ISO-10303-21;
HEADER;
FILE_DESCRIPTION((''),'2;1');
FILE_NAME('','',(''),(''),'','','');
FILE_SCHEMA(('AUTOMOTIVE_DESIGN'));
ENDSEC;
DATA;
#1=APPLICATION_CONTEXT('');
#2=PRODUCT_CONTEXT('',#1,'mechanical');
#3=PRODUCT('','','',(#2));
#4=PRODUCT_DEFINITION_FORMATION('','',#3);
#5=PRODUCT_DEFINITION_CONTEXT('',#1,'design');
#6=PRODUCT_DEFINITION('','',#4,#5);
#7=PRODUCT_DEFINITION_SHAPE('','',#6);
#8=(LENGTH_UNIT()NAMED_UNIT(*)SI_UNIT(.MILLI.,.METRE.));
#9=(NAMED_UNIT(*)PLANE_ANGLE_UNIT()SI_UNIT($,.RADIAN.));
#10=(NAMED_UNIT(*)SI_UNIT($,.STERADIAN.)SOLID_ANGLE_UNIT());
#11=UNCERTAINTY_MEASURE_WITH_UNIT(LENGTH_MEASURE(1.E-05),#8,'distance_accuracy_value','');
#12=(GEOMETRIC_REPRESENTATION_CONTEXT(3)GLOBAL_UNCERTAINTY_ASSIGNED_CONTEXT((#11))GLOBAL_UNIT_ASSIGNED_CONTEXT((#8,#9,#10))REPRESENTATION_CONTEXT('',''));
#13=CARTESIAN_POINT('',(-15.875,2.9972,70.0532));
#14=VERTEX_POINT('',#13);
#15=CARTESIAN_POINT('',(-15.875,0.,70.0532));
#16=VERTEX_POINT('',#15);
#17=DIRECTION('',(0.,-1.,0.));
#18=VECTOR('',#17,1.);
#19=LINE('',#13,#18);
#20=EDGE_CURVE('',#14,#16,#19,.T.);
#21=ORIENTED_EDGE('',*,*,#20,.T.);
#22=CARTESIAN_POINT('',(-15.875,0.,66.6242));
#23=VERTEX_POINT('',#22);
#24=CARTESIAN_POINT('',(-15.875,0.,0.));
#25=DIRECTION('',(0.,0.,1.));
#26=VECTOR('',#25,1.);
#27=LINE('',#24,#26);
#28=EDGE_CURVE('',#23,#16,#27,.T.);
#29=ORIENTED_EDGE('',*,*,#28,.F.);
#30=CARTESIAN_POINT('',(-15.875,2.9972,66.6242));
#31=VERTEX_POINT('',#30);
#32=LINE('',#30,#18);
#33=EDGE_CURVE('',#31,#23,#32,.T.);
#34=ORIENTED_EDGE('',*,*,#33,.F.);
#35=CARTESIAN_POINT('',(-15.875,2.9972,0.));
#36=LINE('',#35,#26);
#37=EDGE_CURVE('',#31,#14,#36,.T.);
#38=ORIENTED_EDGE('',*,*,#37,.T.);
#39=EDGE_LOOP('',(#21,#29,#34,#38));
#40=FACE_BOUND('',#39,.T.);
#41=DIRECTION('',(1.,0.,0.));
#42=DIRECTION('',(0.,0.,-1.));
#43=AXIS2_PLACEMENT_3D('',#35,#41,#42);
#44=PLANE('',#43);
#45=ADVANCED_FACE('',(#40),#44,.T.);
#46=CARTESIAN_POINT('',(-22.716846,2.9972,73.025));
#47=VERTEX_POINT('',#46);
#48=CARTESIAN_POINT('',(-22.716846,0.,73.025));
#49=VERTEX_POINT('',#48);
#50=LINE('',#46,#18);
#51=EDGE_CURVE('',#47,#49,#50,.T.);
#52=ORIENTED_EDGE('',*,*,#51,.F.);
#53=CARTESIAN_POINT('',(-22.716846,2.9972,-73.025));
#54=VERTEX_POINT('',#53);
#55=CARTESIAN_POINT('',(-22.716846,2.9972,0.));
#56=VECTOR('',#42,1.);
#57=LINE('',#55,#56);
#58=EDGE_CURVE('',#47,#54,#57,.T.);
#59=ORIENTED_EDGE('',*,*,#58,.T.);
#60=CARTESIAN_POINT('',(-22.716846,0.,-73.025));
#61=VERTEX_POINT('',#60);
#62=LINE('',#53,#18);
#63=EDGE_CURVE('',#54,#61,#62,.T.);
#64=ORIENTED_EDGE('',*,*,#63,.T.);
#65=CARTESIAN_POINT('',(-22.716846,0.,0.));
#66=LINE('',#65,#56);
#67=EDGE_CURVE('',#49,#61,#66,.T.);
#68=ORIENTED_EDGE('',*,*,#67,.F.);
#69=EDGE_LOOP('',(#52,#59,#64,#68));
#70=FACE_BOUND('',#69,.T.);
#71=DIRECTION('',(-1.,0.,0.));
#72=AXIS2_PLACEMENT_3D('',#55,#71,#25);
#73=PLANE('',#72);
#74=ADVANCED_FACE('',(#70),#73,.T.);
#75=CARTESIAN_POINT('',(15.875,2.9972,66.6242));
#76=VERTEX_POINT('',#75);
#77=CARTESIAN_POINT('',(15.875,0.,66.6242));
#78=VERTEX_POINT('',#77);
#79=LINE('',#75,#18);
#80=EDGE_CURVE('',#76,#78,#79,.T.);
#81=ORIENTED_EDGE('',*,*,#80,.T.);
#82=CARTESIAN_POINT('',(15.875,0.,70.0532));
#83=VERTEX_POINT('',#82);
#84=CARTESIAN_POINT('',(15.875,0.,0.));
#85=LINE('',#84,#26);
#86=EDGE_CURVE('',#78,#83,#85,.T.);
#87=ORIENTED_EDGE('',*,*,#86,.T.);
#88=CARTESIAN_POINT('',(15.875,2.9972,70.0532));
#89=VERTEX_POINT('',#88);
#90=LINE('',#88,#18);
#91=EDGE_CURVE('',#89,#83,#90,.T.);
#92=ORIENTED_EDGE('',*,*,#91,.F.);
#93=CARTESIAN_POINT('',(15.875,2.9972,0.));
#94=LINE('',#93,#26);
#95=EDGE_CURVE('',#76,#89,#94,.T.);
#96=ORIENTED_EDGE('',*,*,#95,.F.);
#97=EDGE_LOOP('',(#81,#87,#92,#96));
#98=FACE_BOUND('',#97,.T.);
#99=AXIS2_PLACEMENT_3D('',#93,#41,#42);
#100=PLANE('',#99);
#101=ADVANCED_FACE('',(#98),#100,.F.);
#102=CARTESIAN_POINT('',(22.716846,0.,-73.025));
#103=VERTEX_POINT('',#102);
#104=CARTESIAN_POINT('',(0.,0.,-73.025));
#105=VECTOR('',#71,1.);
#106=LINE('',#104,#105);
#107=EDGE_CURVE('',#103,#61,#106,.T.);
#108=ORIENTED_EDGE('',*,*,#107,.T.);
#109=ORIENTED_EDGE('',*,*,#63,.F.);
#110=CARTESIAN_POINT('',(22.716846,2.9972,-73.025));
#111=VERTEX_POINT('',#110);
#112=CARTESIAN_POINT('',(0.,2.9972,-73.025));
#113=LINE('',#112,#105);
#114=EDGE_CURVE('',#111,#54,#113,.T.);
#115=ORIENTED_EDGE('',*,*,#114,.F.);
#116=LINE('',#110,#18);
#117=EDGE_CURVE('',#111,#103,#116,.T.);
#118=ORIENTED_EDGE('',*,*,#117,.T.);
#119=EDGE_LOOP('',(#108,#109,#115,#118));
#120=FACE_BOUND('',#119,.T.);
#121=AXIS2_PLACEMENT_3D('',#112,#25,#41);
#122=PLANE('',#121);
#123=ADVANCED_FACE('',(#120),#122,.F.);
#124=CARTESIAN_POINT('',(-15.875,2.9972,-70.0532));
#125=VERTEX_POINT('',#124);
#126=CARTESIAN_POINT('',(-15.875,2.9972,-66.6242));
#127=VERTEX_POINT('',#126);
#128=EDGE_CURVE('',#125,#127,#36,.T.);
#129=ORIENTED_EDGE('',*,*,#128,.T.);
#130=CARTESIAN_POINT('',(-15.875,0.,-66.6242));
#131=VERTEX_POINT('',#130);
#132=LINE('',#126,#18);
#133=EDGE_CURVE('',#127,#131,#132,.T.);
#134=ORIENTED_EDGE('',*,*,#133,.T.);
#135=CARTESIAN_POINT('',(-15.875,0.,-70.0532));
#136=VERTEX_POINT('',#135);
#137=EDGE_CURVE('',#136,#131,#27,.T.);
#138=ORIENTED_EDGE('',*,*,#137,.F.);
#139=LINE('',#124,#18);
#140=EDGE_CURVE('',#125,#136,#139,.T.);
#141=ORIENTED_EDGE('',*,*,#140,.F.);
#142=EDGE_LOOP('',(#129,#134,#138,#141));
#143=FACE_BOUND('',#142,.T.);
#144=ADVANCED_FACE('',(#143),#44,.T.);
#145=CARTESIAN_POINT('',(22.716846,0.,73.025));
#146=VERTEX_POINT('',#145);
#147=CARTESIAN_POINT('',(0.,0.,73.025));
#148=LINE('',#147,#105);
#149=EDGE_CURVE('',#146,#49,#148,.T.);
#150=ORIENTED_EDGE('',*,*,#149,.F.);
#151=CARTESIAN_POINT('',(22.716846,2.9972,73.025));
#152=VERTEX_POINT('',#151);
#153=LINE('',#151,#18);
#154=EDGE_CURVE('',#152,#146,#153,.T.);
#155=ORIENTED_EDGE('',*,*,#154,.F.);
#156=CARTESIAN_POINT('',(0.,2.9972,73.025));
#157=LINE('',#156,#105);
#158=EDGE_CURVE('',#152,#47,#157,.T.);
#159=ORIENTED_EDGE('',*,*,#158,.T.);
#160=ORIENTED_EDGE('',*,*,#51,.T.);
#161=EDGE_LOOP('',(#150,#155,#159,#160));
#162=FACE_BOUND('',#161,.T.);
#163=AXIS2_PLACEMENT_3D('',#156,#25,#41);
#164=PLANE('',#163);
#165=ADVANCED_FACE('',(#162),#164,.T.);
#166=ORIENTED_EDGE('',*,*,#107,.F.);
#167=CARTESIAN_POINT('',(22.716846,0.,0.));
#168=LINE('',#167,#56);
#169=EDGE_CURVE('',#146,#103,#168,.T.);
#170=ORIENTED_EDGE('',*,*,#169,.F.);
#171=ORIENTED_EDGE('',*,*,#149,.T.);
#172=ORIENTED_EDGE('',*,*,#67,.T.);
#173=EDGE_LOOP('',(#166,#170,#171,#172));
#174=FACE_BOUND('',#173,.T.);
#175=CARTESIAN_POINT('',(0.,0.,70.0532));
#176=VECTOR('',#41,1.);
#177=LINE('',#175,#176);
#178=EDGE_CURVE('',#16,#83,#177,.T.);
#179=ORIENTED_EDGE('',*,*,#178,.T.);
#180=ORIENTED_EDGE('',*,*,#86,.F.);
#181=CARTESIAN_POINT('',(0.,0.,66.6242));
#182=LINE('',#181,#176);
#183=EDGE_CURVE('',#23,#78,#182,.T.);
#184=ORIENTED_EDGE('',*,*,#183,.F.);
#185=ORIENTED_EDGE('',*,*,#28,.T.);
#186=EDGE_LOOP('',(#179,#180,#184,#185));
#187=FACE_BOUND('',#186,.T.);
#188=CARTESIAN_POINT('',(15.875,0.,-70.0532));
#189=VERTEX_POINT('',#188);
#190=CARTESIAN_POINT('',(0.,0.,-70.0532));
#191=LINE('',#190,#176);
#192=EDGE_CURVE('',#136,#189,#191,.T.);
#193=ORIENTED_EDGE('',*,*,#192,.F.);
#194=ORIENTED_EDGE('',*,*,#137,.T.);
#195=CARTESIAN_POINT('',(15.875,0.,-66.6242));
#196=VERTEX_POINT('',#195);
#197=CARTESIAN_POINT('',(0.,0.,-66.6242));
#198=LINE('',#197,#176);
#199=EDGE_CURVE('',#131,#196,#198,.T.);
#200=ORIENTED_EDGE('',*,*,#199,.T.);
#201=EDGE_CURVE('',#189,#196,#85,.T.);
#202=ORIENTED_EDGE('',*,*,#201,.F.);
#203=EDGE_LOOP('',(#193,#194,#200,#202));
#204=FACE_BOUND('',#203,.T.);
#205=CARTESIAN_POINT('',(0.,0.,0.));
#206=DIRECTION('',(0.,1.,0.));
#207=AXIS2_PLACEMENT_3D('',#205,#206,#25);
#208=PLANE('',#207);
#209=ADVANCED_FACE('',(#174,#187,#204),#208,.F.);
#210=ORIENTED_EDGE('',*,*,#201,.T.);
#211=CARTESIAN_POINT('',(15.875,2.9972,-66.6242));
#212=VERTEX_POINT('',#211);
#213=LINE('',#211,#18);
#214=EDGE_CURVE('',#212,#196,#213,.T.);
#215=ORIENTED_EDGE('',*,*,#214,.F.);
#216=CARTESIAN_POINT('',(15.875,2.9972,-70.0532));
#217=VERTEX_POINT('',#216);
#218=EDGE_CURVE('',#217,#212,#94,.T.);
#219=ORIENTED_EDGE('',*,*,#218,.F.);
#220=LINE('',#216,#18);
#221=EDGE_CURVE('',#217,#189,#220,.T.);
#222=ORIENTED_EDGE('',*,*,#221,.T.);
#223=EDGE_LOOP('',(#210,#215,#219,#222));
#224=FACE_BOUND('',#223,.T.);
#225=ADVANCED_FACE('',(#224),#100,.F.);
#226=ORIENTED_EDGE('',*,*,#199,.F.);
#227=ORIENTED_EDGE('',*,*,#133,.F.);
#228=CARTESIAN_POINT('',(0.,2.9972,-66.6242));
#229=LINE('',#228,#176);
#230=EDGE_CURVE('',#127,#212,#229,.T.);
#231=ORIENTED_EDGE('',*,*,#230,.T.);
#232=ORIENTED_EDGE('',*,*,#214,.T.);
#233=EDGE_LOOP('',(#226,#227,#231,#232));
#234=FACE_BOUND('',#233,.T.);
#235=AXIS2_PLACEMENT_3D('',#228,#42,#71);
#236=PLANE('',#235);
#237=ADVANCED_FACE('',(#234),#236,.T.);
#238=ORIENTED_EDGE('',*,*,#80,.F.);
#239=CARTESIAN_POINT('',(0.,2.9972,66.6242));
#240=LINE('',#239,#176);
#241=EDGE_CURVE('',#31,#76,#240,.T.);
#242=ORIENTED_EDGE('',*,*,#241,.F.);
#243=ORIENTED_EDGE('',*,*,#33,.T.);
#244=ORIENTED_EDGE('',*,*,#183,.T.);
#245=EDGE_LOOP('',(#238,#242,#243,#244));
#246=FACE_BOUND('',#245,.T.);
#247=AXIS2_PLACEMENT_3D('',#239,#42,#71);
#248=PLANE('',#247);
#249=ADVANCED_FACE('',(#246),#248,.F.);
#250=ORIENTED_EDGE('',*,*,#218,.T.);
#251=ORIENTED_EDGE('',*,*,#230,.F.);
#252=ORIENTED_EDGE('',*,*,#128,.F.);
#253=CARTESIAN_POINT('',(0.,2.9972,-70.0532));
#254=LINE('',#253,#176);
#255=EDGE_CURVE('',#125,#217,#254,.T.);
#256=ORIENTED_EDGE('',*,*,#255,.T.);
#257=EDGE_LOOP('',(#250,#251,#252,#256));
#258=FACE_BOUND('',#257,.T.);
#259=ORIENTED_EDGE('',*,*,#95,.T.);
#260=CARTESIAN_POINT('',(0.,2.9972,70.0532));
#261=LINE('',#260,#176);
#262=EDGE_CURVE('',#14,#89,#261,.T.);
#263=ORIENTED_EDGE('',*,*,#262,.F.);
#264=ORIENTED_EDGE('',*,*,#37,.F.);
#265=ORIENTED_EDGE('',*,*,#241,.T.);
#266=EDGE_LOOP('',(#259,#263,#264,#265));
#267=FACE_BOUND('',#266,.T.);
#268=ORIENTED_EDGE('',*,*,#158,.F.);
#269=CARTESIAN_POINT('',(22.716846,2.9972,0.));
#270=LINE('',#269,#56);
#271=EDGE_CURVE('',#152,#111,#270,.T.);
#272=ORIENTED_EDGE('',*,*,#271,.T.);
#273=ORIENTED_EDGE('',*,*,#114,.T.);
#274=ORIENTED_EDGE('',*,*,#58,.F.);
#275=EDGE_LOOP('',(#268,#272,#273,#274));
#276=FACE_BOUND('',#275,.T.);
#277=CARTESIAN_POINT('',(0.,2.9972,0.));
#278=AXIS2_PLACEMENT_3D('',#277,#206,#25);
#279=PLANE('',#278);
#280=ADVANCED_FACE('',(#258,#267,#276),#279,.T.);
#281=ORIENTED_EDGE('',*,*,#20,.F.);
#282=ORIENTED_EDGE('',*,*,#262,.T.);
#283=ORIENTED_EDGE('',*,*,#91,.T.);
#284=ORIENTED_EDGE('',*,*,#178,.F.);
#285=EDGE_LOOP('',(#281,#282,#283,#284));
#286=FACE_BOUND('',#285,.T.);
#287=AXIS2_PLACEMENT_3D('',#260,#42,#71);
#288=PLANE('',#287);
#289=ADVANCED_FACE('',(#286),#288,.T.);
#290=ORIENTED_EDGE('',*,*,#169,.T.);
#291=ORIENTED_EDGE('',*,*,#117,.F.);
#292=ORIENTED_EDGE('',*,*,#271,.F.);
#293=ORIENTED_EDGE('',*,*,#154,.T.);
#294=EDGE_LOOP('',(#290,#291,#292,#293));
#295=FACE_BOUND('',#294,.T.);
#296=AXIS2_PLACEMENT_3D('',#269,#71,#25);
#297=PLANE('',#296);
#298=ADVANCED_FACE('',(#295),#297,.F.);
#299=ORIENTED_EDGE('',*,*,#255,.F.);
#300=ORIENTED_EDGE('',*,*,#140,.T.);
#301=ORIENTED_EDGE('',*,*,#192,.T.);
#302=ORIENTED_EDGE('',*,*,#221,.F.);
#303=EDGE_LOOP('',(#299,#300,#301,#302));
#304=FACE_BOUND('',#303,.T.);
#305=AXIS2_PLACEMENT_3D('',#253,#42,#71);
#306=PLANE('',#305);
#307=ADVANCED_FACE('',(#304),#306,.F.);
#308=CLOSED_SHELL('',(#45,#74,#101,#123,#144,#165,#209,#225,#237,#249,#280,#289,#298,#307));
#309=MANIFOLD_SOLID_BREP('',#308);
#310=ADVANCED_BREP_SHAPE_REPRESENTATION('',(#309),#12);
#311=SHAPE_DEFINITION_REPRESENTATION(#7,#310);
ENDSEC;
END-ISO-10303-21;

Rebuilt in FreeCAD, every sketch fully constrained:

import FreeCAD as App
import Part
import Sketcher

V = App.Vector
Q = App.Units.Quantity


def add_polygon(sketch, points):
    """Adds a closed chain of lines whose ends are joined by coincident constraints."""
    first, n = sketch.GeometryCount, len(points)
    for a, b in zip(points, points[1:] + points[:1]):
        sketch.addGeometry(Part.LineSegment(App.Vector(*a, 0), App.Vector(*b, 0)), False)
    for i in range(n):
        sketch.addConstraint(Sketcher.Constraint("Coincident", first + i, 2, first + (i + 1) % n, 1))

doc = App.newDocument("Part")
body = doc.addObject("PartDesign::Body", "Body")

sketch1 = doc.addObject("Sketcher::SketchObject", "Sketch")
body.addObject(sketch1)
sketch1.AttachmentSupport = (doc.XZ_Plane, [""])
sketch1.MapMode = "FlatFace"
add_polygon(sketch1, [(-22.716846, -73.025), (-22.716846, 73.025), (22.716846, 73.025), (22.716846, -73.025)])
add_polygon(sketch1, [(15.875, 70.0532), (-15.875, 70.0532), (-15.875, 66.6242), (15.875, 66.6242)])
add_polygon(sketch1, [(15.875, -66.6242), (-15.875, -66.6242), (-15.875, -70.0532), (15.875, -70.0532)])
sketch1.addConstraint(Sketcher.Constraint("Vertical", 0))
sketch1.addConstraint(Sketcher.Constraint("Horizontal", 1))
sketch1.addConstraint(Sketcher.Constraint("Vertical", 2))
sketch1.addConstraint(Sketcher.Constraint("Horizontal", 3))
sketch1.addConstraint(Sketcher.Constraint("Horizontal", 4))
sketch1.addConstraint(Sketcher.Constraint("Vertical", 5))
sketch1.addConstraint(Sketcher.Constraint("Horizontal", 6))
sketch1.addConstraint(Sketcher.Constraint("Vertical", 7))
sketch1.addConstraint(Sketcher.Constraint("Horizontal", 8))
sketch1.addConstraint(Sketcher.Constraint("Vertical", 9))
sketch1.addConstraint(Sketcher.Constraint("Horizontal", 10))
sketch1.addConstraint(Sketcher.Constraint("Vertical", 11))
sketch1.addConstraint(Sketcher.Constraint("Symmetric", 0, 2, 2, 2, -1, 1))
sketch1.addConstraint(Sketcher.Constraint("Symmetric", 6, 2, 8, 2, -1, 1))
sketch1.addConstraint(Sketcher.Constraint("Symmetric", 4, 2, 10, 2, -1, 1))
sketch1.addConstraint(Sketcher.Constraint("Vertical", 5, 2, 8, 2))
sketch1.addConstraint(Sketcher.Constraint("DistanceX", 4, 2, 4, 1, Q("1.25 in")))
sketch1.addConstraint(Sketcher.Constraint("DistanceY", 0, 1, 0, 2, Q("5.75 in")))
sketch1.addConstraint(Sketcher.Constraint("DistanceY", 5, 2, 5, 1, Q("0.135 in")))
sketch1.addConstraint(Sketcher.Constraint("DistanceY", -1, 1, 4, 2, Q("2.758 in")))
sketch1.addConstraint(Sketcher.Constraint("DistanceX", 1, 1, 1, 2, Q("45.433691 mm")))
pad1 = doc.addObject("PartDesign::Pad", "Pad")
body.addObject(pad1)
pad1.Profile = sketch1
pad1.Length = Q("0.118 in")
pad1.Reversed = True

doc.recompute()
